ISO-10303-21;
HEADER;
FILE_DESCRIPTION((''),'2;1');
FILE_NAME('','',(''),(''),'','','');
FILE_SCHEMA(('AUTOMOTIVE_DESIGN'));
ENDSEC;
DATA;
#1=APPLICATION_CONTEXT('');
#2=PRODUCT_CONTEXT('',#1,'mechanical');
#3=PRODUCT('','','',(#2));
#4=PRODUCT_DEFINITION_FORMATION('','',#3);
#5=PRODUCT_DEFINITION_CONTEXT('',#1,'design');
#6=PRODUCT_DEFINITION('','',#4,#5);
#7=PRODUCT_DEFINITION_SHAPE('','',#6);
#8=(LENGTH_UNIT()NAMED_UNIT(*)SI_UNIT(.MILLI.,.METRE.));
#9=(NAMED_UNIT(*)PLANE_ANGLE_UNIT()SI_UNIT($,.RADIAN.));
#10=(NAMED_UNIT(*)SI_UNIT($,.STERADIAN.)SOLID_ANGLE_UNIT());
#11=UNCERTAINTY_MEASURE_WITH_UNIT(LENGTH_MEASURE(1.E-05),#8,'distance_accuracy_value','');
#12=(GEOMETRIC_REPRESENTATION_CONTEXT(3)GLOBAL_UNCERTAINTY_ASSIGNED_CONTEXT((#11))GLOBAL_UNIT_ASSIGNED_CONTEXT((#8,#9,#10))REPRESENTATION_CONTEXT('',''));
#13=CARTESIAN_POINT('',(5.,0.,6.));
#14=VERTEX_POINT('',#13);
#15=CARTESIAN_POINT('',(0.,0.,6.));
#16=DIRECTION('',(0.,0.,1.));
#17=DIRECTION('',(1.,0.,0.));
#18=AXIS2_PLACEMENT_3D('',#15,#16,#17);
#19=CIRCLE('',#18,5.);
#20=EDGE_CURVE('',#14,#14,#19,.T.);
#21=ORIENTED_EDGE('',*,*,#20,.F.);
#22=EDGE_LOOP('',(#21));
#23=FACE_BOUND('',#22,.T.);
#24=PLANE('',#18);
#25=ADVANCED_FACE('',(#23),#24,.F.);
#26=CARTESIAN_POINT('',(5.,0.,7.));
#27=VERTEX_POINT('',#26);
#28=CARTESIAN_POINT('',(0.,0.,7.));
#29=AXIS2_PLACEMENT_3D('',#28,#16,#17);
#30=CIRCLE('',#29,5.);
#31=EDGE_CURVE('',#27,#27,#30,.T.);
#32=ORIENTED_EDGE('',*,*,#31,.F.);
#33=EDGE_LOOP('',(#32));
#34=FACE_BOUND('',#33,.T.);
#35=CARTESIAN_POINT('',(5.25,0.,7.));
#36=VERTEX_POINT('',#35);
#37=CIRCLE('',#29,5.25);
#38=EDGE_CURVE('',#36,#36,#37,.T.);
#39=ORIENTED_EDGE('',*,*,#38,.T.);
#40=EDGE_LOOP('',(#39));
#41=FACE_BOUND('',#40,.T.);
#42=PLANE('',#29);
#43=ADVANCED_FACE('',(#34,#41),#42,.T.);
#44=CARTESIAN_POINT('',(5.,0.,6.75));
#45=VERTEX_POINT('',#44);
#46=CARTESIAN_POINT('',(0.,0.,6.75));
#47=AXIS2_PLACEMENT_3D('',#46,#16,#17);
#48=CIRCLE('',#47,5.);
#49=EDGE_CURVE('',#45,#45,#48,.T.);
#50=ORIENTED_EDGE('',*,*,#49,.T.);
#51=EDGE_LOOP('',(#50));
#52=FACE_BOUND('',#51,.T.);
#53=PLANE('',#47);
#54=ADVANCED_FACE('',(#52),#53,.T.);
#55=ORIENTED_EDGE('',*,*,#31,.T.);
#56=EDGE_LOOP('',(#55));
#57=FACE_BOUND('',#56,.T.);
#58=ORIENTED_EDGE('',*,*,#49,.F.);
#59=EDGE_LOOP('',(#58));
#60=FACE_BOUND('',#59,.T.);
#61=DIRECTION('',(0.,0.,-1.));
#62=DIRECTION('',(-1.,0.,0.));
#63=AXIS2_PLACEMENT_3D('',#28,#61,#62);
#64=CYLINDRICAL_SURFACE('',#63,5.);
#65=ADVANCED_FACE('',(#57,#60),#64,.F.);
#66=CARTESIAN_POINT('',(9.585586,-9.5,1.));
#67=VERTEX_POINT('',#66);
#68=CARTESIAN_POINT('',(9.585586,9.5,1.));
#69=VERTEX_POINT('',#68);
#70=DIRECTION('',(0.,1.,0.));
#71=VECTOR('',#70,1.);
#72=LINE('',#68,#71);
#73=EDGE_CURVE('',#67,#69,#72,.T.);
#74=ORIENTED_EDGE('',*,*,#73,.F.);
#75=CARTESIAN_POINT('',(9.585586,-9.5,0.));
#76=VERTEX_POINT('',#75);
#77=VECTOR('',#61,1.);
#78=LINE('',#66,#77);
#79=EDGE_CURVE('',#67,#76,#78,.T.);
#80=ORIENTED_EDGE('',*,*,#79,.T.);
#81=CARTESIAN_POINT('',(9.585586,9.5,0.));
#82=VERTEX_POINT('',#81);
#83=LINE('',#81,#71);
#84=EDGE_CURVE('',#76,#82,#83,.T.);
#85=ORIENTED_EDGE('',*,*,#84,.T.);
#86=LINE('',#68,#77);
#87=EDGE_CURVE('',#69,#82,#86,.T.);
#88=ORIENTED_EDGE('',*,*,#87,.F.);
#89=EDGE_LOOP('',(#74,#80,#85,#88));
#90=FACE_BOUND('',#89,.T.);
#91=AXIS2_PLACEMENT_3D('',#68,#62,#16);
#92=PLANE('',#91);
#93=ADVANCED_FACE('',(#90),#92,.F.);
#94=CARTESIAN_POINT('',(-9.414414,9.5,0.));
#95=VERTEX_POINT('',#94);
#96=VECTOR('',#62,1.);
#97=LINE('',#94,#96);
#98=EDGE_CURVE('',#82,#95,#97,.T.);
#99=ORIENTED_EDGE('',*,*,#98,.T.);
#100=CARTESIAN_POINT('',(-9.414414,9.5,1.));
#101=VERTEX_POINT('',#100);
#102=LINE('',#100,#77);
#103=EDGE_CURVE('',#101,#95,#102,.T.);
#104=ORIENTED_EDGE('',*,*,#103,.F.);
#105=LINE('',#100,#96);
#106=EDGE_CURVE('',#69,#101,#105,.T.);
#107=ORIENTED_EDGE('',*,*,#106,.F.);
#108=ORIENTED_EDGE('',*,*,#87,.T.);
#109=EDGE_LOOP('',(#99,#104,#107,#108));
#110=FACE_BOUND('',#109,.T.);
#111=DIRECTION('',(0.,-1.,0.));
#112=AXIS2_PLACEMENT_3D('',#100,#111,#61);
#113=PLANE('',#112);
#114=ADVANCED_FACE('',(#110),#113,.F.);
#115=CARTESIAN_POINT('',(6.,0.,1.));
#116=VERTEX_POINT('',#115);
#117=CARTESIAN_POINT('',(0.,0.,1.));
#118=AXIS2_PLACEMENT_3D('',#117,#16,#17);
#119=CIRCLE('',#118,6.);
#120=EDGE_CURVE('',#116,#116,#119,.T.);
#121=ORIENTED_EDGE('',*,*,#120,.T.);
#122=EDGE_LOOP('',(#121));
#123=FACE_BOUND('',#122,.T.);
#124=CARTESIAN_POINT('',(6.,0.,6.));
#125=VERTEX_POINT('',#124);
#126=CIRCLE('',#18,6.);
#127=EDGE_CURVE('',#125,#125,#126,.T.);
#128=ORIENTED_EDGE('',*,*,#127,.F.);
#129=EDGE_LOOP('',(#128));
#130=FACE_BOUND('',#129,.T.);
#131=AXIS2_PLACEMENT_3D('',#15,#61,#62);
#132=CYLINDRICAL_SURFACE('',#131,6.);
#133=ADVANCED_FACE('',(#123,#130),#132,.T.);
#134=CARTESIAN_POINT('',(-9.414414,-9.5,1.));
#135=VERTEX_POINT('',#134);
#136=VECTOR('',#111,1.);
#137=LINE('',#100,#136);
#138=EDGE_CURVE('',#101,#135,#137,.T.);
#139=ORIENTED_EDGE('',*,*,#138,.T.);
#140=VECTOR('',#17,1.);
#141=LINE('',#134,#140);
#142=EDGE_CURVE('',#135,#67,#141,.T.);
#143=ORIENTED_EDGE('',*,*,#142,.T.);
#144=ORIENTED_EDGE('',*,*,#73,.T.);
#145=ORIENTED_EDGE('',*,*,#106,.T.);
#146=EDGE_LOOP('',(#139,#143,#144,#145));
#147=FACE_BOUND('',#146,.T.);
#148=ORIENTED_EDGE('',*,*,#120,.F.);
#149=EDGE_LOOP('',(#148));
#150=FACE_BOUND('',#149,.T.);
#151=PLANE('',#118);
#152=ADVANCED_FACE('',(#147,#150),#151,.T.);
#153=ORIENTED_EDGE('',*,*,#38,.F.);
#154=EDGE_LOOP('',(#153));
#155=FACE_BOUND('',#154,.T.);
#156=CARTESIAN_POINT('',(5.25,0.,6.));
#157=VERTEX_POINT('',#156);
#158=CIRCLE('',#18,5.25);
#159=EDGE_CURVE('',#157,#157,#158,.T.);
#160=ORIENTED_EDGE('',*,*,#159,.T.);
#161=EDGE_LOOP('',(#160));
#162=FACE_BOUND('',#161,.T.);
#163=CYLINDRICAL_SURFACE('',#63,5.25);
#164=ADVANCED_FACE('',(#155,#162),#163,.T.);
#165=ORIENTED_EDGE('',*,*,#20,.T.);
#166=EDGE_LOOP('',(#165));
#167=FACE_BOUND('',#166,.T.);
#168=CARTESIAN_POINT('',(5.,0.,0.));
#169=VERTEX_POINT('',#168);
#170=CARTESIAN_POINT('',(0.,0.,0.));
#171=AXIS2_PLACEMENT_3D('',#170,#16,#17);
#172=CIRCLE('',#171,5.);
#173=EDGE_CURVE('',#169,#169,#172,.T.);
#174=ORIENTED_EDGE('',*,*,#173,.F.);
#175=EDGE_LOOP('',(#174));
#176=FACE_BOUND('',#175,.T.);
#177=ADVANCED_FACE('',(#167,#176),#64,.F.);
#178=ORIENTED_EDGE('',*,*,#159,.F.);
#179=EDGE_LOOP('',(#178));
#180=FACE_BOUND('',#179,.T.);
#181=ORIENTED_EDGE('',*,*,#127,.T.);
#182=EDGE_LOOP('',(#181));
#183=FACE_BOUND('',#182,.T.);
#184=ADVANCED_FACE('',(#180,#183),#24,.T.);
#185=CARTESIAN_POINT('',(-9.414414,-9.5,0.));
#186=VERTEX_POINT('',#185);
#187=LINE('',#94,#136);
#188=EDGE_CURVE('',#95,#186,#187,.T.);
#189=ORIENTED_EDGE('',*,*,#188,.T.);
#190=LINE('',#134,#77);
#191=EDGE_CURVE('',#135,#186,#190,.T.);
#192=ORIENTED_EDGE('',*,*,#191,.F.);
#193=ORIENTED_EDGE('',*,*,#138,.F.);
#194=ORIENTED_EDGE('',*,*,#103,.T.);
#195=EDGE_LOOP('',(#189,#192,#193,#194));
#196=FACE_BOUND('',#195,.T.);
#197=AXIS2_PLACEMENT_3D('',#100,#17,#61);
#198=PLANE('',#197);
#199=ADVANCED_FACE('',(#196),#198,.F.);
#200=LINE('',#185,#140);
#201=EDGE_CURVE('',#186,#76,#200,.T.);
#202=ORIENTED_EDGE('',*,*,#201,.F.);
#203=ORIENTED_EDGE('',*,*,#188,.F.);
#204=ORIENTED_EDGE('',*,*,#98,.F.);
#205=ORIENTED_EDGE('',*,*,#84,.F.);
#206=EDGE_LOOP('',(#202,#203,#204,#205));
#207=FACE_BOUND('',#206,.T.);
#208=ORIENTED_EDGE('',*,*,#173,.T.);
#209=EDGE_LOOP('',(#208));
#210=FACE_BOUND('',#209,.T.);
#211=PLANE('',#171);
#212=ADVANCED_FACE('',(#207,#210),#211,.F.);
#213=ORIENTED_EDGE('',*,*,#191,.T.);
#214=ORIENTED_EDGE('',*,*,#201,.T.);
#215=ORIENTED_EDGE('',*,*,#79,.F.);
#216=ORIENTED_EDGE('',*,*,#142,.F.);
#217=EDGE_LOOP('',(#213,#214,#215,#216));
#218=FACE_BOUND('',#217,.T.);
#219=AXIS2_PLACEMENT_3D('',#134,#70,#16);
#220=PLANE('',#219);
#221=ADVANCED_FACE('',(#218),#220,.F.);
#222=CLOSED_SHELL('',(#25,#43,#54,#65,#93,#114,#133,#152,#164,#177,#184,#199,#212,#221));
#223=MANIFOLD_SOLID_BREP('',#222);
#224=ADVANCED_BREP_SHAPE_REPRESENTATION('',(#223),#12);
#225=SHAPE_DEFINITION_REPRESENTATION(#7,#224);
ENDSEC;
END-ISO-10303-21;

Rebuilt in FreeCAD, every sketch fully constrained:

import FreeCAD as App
import Part
import Sketcher

V = App.Vector
Q = App.Units.Quantity

doc = App.newDocument("Part")
body = doc.addObject("PartDesign::Body", "Body")

# Sketch on XY plane
sketch1 = body.newObject("Sketcher::SketchObject", "Sketch")
sketch1.AttachmentSupport = (doc.getObject("XY_Plane"), [""])
sketch1.MapMode = "FlatFace"
sketch1.addGeometry(Part.LineSegment(V(-9.414414, 9.5, 0), V(-9.414414, -9.5, 0)), False)
sketch1.addGeometry(Part.LineSegment(V(-9.414414, -9.5, 0), V(9.585586, -9.5, 0)), False)
sketch1.addGeometry(Part.LineSegment(V(9.585586, -9.5, 0), V(9.585586, 9.5, 0)), False)
sketch1.addGeometry(Part.LineSegment(V(9.585586, 9.5, 0), V(-9.414414, 9.5, 0)), False)
sketch1.addConstraint(Sketcher.Constraint("Coincident", 0, 2, 1, 1))
sketch1.addConstraint(Sketcher.Constraint("Coincident", 1, 2, 2, 1))
sketch1.addConstraint(Sketcher.Constraint("Coincident", 2, 2, 3, 1))
sketch1.addConstraint(Sketcher.Constraint("Coincident", 3, 2, 0, 1))
sketch1.addConstraint(Sketcher.Constraint("Vertical", 0))
sketch1.addConstraint(Sketcher.Constraint("Horizontal", 1))
sketch1.addConstraint(Sketcher.Constraint("Vertical", 2))
sketch1.addConstraint(Sketcher.Constraint("Horizontal", 3))
sketch1.addConstraint(Sketcher.Constraint("Equal", 3, 0))
sketch1.addConstraint(Sketcher.Constraint("DistanceX", 1, 1, 1, 2, Q("19 mm")))
sketch1.addConstraint(Sketcher.Constraint("DistanceY", 0, 2, -1, 1, Q("9.5 mm")))
sketch1.addConstraint(Sketcher.Constraint("DistanceX", 0, 2, -1, 1, Q("9.414414 mm")))
pad1 = body.newObject("PartDesign::Pad", "Pad")
pad1.Profile = sketch1
pad1.Length = 1

# Sketch on XY plane
sketch2 = body.newObject("Sketcher::SketchObject", "Sketch001")
sketch2.AttachmentSupport = (doc.getObject("XY_Plane"), [""])
sketch2.MapMode = "FlatFace"
sketch2.AttachmentOffset = App.Placement(V(0, 0, 1), App.Rotation())
sketch2.addGeometry(Part.Circle(V(0, 0, 0), V(0, 0, 1), 6), False)
sketch2.addConstraint(Sketcher.Constraint("Coincident", 0, 3, -1, 1))
sketch2.addConstraint(Sketcher.Constraint("Diameter", 0, Q("12 mm")))
pad2 = body.newObject("PartDesign::Pad", "Pad001")
pad2.Profile = sketch2
pad2.Length = 5

# Sketch on XY plane
sketch3 = body.newObject("Sketcher::SketchObject", "Sketch002")
sketch3.AttachmentSupport = (doc.getObject("XY_Plane"), [""])
sketch3.MapMode = "FlatFace"
sketch3.AttachmentOffset = App.Placement(V(0, 0, 6), App.Rotation())
sketch3.addGeometry(Part.Circle(V(0, 0, 0), V(0, 0, 1), 5.25), False)
sketch3.addGeometry(Part.Circle(V(0, 0, 0), V(0, 0, 1), 5), False)
sketch3.addConstraint(Sketcher.Constraint("Coincident", 0, 3, -1, 1))
sketch3.addConstraint(Sketcher.Constraint("Coincident", 1, 3, -1, 1))
sketch3.addConstraint(Sketcher.Constraint("Diameter", 1, Q("10 mm")))
sketch3.addConstraint(Sketcher.Constraint("Diameter", 0, Q("10.5 mm")))
pad3 = body.newObject("PartDesign::Pad", "Pad002")
pad3.Profile = sketch3
pad3.Length = 1

# Sketch on XY plane
sketch4 = body.newObject("Sketcher::SketchObject", "Sketch003")
sketch4.AttachmentSupport = (doc.getObject("XY_Plane"), [""])
sketch4.MapMode = "FlatFace"
sketch4.AttachmentOffset = App.Placement(V(0, 0, 7), App.Rotation())
sketch4.addGeometry(Part.Circle(V(0, 0, 0), V(0, 0, 1), 5), False)
sketch4.addConstraint(Sketcher.Constraint("Coincident", 0, 3, -1, 1))
sketch4.addConstraint(Sketcher.Constraint("Diameter", 0, Q("10 mm")))
pocket1 = body.newObject("PartDesign::Pocket", "Pocket")
pocket1.Profile = sketch4
pocket1.Type = "ThroughAll"

# Sketch on XY plane
sketch5 = body.newObject("Sketcher::SketchObject", "Sketch004")
sketch5.AttachmentSupport = (doc.getObject("XY_Plane"), [""])
sketch5.MapMode = "FlatFace"
sketch5.AttachmentOffset = App.Placement(V(0, 0, 6), App.Rotation())
sketch5.addGeometry(Part.Circle(V(0, 0, 0), V(0, 0, 1), 5.25), False)
sketch5.addConstraint(Sketcher.Constraint("Coincident", 0, 3, -1, 1))
sketch5.addConstraint(Sketcher.Constraint("Diameter", 0, Q("10.5 mm")))
pad4 = body.newObject("PartDesign::Pad", "Pad003")
pad4.Profile = sketch5
pad4.Length = 0.75

doc.recompute()
